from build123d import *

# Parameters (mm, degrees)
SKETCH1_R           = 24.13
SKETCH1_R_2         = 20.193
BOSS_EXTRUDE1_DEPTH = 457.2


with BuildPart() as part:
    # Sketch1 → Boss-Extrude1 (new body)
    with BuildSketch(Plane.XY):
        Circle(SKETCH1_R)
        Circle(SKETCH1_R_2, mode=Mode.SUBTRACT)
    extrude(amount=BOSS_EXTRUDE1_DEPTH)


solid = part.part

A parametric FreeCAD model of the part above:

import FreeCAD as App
import Part
import Sketcher

V = App.Vector
Q = App.Units.Quantity

doc = App.newDocument("Part")
params = doc.addObject("Spreadsheet::Sheet", "Params")
for row, (alias, value) in enumerate([
    ("sketch1_diameter", "1.9 in"),
    ("sketch1_diameter2", "1.59 in"),
    ("pad1_length", "18 in"),
], start=1):
    params.set(f"A{row}", alias)
    params.set(f"B{row}", "=" + value)
    params.setAlias(f"B{row}", alias)

body = doc.addObject("PartDesign::Body", "Body")

# Sketch on XY plane
sketch1 = body.newObject("Sketcher::SketchObject", "Sketch")
sketch1.AttachmentSupport = (doc.getObject("XY_Plane"), [""])
sketch1.MapMode = "FlatFace"
sketch1.addGeometry([
    Part.Circle(V(0, 0, 0), V(0, 0, 1), 24),
    Part.Circle(V(0, 0, 0), V(0, 0, 1), 20),
], False)
sketch1.addConstraint([
    Sketcher.Constraint("Coincident", 0, 3, -1, 1),
    Sketcher.Constraint("Coincident", 1, 3, -1, 1),
    Sketcher.Constraint("Diameter", 0, Q("1.9 in")),
    Sketcher.Constraint("Diameter", 1, Q("1.59 in")),
])
sketch1.setExpression("Constraints[2]", "Params.sketch1_diameter")
sketch1.setExpression("Constraints[3]", "Params.sketch1_diameter2")
pad1 = body.newObject("PartDesign::Pad", "Pad")
pad1.Profile = sketch1
pad1.setExpression("Length", "Params.pad1_length")

doc.recompute()
